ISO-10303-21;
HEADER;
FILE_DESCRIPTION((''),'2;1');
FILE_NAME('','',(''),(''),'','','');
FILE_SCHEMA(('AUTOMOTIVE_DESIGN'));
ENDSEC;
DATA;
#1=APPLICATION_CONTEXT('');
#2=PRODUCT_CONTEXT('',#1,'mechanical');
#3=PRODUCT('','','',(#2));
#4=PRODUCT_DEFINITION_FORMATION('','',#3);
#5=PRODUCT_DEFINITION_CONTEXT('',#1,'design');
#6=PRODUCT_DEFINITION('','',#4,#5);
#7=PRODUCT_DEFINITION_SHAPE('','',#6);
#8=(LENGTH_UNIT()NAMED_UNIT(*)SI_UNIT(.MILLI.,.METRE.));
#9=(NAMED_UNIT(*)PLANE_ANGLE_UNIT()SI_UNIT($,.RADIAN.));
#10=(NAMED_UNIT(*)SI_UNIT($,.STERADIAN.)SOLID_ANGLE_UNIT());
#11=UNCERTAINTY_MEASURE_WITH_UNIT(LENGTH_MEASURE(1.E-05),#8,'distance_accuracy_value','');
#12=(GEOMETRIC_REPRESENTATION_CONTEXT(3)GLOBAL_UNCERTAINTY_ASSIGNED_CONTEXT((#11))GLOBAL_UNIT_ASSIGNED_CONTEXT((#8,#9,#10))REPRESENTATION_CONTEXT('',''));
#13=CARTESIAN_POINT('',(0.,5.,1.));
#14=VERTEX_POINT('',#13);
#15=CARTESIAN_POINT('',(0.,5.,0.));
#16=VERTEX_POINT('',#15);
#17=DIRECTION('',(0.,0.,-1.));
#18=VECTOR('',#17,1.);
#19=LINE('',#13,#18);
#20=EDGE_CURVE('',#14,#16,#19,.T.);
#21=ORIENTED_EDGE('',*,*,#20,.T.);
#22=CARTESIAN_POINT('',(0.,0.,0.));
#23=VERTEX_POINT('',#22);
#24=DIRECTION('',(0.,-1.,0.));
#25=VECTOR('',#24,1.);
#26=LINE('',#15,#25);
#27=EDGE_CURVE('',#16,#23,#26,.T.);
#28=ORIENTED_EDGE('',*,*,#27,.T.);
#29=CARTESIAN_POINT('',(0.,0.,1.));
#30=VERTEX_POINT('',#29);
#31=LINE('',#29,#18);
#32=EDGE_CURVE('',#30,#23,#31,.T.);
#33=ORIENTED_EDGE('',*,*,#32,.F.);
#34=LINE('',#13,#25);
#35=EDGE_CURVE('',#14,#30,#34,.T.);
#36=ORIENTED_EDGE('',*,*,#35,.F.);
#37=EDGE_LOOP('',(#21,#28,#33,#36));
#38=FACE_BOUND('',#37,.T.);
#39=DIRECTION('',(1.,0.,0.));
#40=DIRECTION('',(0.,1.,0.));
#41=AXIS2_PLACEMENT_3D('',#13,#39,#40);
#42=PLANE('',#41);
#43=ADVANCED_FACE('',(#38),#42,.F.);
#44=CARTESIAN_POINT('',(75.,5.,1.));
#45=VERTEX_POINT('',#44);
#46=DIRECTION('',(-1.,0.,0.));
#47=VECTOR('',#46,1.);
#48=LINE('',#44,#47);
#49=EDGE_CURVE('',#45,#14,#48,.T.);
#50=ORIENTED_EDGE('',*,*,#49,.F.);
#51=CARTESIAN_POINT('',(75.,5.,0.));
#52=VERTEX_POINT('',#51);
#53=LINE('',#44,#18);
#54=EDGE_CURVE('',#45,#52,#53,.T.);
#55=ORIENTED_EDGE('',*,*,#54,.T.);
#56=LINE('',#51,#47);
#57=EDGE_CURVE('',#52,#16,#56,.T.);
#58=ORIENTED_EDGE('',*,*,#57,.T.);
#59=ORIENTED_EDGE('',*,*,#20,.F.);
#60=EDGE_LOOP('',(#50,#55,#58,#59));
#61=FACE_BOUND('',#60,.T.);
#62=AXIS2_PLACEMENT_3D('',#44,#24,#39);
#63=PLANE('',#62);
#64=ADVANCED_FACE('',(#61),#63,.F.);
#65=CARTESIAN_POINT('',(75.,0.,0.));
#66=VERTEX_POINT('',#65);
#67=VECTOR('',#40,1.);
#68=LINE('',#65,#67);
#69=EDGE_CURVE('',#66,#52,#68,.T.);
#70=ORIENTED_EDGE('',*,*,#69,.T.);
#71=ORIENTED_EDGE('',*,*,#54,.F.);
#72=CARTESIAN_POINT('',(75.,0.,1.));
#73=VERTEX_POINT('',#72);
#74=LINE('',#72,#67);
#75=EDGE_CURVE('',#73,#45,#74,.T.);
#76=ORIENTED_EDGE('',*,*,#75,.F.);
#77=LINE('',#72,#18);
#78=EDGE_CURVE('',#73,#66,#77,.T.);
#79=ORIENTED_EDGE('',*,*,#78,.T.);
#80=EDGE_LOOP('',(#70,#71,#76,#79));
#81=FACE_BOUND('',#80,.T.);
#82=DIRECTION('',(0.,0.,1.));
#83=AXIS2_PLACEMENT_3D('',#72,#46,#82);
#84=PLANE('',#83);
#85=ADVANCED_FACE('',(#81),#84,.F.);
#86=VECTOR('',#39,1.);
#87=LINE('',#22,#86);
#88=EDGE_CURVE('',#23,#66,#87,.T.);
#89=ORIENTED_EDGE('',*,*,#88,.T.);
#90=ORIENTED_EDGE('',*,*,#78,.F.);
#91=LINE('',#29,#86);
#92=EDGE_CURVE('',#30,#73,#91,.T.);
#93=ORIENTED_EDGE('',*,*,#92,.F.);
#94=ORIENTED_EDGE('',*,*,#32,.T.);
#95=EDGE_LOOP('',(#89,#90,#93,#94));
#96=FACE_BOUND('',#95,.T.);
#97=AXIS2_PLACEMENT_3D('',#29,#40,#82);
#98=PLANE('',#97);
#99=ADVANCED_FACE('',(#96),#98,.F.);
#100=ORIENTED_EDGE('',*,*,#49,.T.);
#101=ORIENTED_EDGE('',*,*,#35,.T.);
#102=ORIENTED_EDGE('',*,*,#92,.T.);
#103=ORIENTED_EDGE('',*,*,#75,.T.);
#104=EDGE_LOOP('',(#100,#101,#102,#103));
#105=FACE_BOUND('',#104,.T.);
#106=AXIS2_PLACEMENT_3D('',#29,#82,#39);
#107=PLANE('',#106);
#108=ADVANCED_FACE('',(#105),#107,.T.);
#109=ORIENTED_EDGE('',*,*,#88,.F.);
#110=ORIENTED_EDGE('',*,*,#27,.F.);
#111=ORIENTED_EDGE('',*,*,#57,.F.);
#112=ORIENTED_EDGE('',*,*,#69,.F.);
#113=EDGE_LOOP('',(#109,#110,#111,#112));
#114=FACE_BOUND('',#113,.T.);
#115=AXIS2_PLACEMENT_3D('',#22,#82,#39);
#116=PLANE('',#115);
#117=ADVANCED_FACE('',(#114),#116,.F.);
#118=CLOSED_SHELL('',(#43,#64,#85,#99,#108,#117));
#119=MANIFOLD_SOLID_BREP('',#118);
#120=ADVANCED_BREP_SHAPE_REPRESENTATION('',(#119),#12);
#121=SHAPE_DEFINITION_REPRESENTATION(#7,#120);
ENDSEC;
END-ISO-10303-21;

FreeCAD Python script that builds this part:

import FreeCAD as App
import Part
import Sketcher
Q = App.Units.Quantity

doc = App.newDocument("Part")
body = doc.addObject("PartDesign::Body", "Body")

# Sketch on XY plane
sketch1 = body.newObject("Sketcher::SketchObject", "Sketch")
sketch1.AttachmentSupport = (doc.getObject("XY_Plane"), [""])
sketch1.MapMode = "FlatFace"
sketch1.addGeometry(Part.LineSegment(App.Vector(0, 5, 0), App.Vector(0, 0, 0)), False)
sketch1.addGeometry(Part.LineSegment(App.Vector(0, 0, 0), App.Vector(75, 0, 0)), False)
sketch1.addGeometry(Part.LineSegment(App.Vector(75, 0, 0), App.Vector(75, 5, 0)), False)
sketch1.addGeometry(Part.LineSegment(App.Vector(75, 5, 0), App.Vector(0, 5, 0)), False)
sketch1.addConstraint(Sketcher.Constraint("Coincident", 0, 2, 1, 1))
sketch1.addConstraint(Sketcher.Constraint("Coincident", 1, 2, 2, 1))
sketch1.addConstraint(Sketcher.Constraint("Coincident", 2, 2, 3, 1))
sketch1.addConstraint(Sketcher.Constraint("Coincident", 3, 2, 0, 1))
sketch1.addConstraint(Sketcher.Constraint("Vertical", 0))
sketch1.addConstraint(Sketcher.Constraint("Horizontal", 1))
sketch1.addConstraint(Sketcher.Constraint("Vertical", 2))
sketch1.addConstraint(Sketcher.Constraint("Horizontal", 3))
sketch1.addConstraint(Sketcher.Constraint("Coincident", 0, 2, -1, 1))
sketch1.addConstraint(Sketcher.Constraint("DistanceX", 1, 1, 1, 2, Q("75 mm")))
sketch1.addConstraint(Sketcher.Constraint("DistanceY", 0, 2, 0, 1, Q("5 mm")))
pad1 = body.newObject("PartDesign::Pad", "Pad")
pad1.Profile = sketch1
pad1.Length = 1

doc.recompute()
